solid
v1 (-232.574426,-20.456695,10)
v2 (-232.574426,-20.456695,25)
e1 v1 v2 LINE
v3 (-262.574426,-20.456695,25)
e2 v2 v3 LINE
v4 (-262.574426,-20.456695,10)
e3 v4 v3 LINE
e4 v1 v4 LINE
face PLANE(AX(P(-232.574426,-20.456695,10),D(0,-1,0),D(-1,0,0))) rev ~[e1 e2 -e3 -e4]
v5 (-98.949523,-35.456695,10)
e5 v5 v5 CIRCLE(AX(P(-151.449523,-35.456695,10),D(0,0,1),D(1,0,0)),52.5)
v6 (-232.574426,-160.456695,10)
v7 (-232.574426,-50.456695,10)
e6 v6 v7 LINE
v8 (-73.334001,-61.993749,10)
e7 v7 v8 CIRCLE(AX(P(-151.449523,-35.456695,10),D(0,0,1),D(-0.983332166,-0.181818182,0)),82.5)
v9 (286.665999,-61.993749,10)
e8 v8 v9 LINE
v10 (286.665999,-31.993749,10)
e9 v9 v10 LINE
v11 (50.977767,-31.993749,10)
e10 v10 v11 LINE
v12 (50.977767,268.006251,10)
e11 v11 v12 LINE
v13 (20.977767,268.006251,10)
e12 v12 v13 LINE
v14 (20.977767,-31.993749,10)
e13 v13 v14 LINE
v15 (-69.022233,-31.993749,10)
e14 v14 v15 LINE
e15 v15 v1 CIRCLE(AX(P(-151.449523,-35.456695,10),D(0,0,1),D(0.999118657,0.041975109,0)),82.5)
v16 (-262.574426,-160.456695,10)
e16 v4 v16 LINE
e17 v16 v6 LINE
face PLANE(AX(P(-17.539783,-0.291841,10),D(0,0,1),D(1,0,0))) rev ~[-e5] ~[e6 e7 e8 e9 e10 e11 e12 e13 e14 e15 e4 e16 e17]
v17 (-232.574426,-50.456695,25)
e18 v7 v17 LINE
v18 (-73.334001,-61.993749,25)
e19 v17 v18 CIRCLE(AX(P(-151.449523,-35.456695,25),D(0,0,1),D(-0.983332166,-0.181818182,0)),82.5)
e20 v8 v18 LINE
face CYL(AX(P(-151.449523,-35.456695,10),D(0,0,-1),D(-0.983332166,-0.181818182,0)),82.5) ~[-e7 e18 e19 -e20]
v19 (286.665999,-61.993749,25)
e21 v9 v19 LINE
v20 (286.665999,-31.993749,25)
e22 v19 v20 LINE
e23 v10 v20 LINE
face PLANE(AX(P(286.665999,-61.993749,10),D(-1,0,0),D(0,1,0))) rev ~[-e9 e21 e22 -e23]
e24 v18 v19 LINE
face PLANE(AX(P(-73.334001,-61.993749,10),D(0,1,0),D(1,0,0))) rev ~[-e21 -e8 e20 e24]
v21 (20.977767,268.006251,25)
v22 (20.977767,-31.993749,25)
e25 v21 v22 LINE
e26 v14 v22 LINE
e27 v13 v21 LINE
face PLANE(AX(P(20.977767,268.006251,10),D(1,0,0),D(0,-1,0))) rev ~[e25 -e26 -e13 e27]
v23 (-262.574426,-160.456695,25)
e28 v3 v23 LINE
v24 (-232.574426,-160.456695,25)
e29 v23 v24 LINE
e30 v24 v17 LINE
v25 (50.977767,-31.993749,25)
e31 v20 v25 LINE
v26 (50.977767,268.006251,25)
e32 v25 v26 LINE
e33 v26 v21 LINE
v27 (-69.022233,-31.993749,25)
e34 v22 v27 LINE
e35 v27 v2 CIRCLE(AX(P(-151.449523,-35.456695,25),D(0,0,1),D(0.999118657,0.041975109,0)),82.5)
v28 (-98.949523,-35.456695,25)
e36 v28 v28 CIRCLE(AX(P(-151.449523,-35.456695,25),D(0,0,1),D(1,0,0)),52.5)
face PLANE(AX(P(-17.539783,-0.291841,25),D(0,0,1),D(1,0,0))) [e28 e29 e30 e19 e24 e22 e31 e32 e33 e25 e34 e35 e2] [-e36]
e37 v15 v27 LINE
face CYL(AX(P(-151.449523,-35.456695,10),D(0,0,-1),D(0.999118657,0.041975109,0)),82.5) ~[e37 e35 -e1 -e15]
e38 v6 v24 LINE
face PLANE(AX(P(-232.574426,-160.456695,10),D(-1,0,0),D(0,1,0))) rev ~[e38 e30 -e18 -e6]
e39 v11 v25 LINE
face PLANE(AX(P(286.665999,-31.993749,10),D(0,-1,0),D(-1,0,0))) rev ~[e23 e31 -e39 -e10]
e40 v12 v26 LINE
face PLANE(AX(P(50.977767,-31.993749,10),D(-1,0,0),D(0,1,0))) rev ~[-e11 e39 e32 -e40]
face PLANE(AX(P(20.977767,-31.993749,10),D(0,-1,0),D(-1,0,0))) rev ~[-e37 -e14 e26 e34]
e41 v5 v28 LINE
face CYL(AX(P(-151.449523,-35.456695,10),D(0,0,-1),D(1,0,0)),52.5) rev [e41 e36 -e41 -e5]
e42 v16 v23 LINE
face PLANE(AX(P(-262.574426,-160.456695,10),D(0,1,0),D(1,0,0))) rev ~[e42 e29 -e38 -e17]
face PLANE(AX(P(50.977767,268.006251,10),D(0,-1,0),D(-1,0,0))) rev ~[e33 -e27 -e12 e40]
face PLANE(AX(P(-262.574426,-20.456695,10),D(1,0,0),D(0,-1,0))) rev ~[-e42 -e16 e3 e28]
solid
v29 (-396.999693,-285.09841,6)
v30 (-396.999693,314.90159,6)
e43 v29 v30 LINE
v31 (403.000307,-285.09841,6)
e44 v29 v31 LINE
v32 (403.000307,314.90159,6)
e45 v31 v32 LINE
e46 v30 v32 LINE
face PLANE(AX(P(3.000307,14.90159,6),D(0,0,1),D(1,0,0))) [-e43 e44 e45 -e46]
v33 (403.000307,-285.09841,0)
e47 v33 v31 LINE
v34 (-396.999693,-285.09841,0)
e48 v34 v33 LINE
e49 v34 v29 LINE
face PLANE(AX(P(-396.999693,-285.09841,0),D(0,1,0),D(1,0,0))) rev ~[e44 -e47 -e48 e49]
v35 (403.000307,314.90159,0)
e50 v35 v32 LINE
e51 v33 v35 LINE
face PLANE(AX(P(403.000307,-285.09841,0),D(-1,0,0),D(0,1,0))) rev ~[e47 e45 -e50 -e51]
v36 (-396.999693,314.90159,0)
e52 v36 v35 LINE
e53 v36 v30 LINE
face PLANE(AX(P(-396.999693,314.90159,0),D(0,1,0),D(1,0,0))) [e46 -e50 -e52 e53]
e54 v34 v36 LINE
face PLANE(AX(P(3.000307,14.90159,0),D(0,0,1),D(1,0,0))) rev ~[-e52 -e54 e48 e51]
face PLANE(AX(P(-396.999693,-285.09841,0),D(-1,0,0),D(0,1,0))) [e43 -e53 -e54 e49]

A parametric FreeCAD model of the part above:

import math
import FreeCAD as App
import Part
import Sketcher
from FreeCAD import Vector

doc = App.newDocument("Part")
body = doc.addObject("PartDesign::Body", "Body")

# Sketch on XY plane
sketch1 = body.newObject("Sketcher::SketchObject", "Sketch")
sketch1.AttachmentSupport = (doc.getObject("XY_Plane"), [""])
sketch1.MapMode = "FlatFace"
sketch1.addGeometry([
    Part.LineSegment(Vector(-396.999693, 314.90159, 0), Vector(-396.999693, -285.09841, 0)),
    Part.LineSegment(Vector(-396.999693, -285.09841, 0), Vector(403.000307, -285.09841, 0)),
    Part.LineSegment(Vector(403.000307, -285.09841, 0), Vector(403.000307, 314.90159, 0)),
    Part.LineSegment(Vector(403.000307, 314.90159, 0), Vector(-396.999693, 314.90159, 0)),
], False)
sketch1.addConstraint([
    Sketcher.Constraint("Coincident", 0, 2, 1, 1),
    Sketcher.Constraint("Coincident", 1, 2, 2, 1),
    Sketcher.Constraint("Coincident", 2, 2, 3, 1),
    Sketcher.Constraint("Coincident", 3, 2, 0, 1),
    Sketcher.Constraint("Vertical", 0),
    Sketcher.Constraint("Horizontal", 1),
    Sketcher.Constraint("Vertical", 2),
    Sketcher.Constraint("Horizontal", 3),
    Sketcher.Constraint("DistanceX", 1, 1, 1, 2, 800.0),
    Sketcher.Constraint("DistanceY", 0, 2, 0, 1, 600.0),
    Sketcher.Constraint("DistanceY", 0, 2, -1, 1, 285.09841),
    Sketcher.Constraint("DistanceX", 0, 2, -1, 1, 396.999693),
])
pad1 = body.newObject("PartDesign::Pad", "Pad")
pad1.Profile = sketch1
pad1.Length = 6
body2 = doc.addObject("PartDesign::Body", "Body001")

# Sketch on XY plane
sketch2 = body2.newObject("Sketcher::SketchObject", "Sketch001")
sketch2.AttachmentSupport = (doc.getObject("XY_Plane001"), [""])
sketch2.MapMode = "FlatFace"
sketch2.AttachmentOffset = App.Placement(Vector(0, 0, 10), App.Rotation())
sketch2.addGeometry([
    Part.LineSegment(Vector(-262.574426, -20.456695, 0), Vector(-262.574426, -160.456695, 0)),  # 0
    Part.LineSegment(Vector(-262.574426, -160.456695, 0), Vector(-232.574426, -160.456695, 0)),  # 1
    Part.LineSegment(Vector(-232.574426, -160.456695, 0), Vector(-232.574426, -50.456695, 0)),  # 2
    Part.ArcOfCircle(Part.Circle(Vector(-151.449523, -35.456695, 0), Vector(0, 0, 1), 82.5), math.radians(-169.524318), math.radians(-18.76342)),  # 3
    Part.LineSegment(Vector(-73.334001, -61.993749, 0), Vector(286.665999, -61.993749, 0)),  # 4
    Part.LineSegment(Vector(286.665999, -61.993749, 0), Vector(286.665999, -31.993749, 0)),  # 5
    Part.LineSegment(Vector(286.665999, -31.993749, 0), Vector(50.977767, -31.993749, 0)),  # 6
    Part.LineSegment(Vector(50.977767, -31.993749, 0), Vector(50.977767, 268.006251, 0)),  # 7
    Part.LineSegment(Vector(50.977767, 268.006251, 0), Vector(20.977767, 268.006251, 0)),  # 8
    Part.LineSegment(Vector(20.977767, 268.006251, 0), Vector(20.977767, -31.993749, 0)),  # 9
    Part.LineSegment(Vector(20.977767, -31.993749, 0), Vector(-69.022233, -31.993749, 0)),  # 10
    Part.ArcOfCircle(Part.Circle(Vector(-151.449523, -35.456695, 0), Vector(0, 0, 1), 82.5), math.radians(2.405703), math.radians(169.524318)),  # 11
    Part.LineSegment(Vector(-232.574426, -20.456695, 0), Vector(-262.574426, -20.456695, 0)),  # 12
    Part.Circle(Vector(-151.449523, -35.456695, 0), Vector(0, 0, 1), 52.5),  # 13
], False)
sketch2.addConstraint([
    Sketcher.Constraint("Coincident", 0, 2, 1, 1),
    Sketcher.Constraint("Coincident", 1, 2, 2, 1),
    Sketcher.Constraint("Coincident", 2, 2, 3, 1),
    Sketcher.Constraint("Coincident", 3, 2, 4, 1),
    Sketcher.Constraint("Coincident", 4, 2, 5, 1),
    Sketcher.Constraint("Coincident", 5, 2, 6, 1),
    Sketcher.Constraint("Coincident", 6, 2, 7, 1),
    Sketcher.Constraint("Coincident", 7, 2, 8, 1),
    Sketcher.Constraint("Coincident", 8, 2, 9, 1),
    Sketcher.Constraint("Coincident", 9, 2, 10, 1),
    Sketcher.Constraint("Coincident", 10, 2, 11, 1),
    Sketcher.Constraint("Coincident", 11, 2, 12, 1),
    Sketcher.Constraint("Coincident", 12, 2, 0, 1),
    Sketcher.Constraint("Vertical", 0),
    Sketcher.Constraint("Horizontal", 1),
    Sketcher.Constraint("Vertical", 2),
    Sketcher.Constraint("Horizontal", 4),
    Sketcher.Constraint("Vertical", 5),
    Sketcher.Constraint("Horizontal", 6),
    Sketcher.Constraint("Vertical", 7),
    Sketcher.Constraint("Horizontal", 8),
    Sketcher.Constraint("Vertical", 9),
    Sketcher.Constraint("Horizontal", 10),
    Sketcher.Constraint("Horizontal", 12),
    Sketcher.Constraint("Coincident", 11, 3, 3, 3),
    Sketcher.Constraint("Coincident", 13, 3, 3, 3),
    Sketcher.Constraint("Equal", 3, 11),
    Sketcher.Constraint("Horizontal", 6, 2, 9, 2),
    Sketcher.Constraint("Vertical", 2, 2, 11, 2),
    Sketcher.Constraint("Equal", 1, 8),
    Sketcher.Constraint("Equal", 12, 5),
    Sketcher.Constraint("Diameter", 13, 105.0),
    Sketcher.Constraint("Radius", 3, 82.5),
    Sketcher.Constraint("DistanceX", 1, 1, 1, 2, 30.0),
    Sketcher.Constraint("DistanceX", 4, 1, 4, 2, 360.0),
    Sketcher.Constraint("DistanceX", 10, 2, 10, 1, 90.0),
    Sketcher.Constraint("DistanceY", 0, 2, 0, 1, 140.0),
    Sketcher.Constraint("DistanceY", 2, 1, 2, 2, 110.0),
    Sketcher.Constraint("DistanceY", 7, 1, 7, 2, 300.0),
    Sketcher.Constraint("DistanceX", 3, 2, -1, 1, 73.334001),
    Sketcher.Constraint("DistanceX", 6, 2, 6, 1, 235.688233),
    Sketcher.Constraint("DistanceY", 3, 2, -1, 1, 61.993749),
])
pad2 = body2.newObject("PartDesign::Pad", "Pad001")
pad2.Profile = sketch2
pad2.Length = 15

doc.recompute()
